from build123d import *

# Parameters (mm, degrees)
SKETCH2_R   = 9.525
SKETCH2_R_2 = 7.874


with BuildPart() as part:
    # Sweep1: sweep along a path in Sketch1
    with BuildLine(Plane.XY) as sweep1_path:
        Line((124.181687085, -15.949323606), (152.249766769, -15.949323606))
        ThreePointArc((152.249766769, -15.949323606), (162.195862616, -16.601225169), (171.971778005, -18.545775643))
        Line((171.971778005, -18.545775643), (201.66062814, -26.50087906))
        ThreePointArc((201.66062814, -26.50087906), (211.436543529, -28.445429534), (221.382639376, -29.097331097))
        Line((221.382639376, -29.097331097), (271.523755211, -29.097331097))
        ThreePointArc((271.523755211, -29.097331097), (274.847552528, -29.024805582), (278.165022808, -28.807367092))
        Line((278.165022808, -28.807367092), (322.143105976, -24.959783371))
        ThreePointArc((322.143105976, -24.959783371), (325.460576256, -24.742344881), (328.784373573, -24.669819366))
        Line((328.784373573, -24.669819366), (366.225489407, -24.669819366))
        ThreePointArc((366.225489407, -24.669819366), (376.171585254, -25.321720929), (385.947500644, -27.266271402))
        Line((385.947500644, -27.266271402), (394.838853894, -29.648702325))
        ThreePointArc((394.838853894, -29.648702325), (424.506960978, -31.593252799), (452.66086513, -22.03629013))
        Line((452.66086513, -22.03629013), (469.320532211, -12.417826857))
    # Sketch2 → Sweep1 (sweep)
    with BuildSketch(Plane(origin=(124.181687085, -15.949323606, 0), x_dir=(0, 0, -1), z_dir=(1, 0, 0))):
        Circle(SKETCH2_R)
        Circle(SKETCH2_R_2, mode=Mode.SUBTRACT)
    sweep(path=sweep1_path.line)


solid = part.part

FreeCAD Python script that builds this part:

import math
import FreeCAD as App
import Part
import Sketcher

V = App.Vector
Q = App.Units.Quantity

doc = App.newDocument("Part")
body = doc.addObject("PartDesign::Body", "Body")

sketch1 = body.newObject("Sketcher::SketchObject", "Sketch")
sketch1.AttachmentSupport = (doc.getObject("YZ_Plane"), [""])
sketch1.MapMode = "FlatFace"
sketch1.AttachmentOffset = App.Placement(V(0, 0, 124.181687), App.Rotation())
sketch1.addGeometry([
    Part.Circle(V(-16, 0, 0), V(0, 0, 1), 10),
    Part.Circle(V(-16, 0, 0), V(0, 0, 1), 8),
], False)
sketch1.addConstraint([
    Sketcher.Constraint("Coincident", 1, 3, 0, 3),
    Sketcher.Constraint("PointOnObject", 0, 3, -1),
    Sketcher.Constraint("Diameter", 0, Q("0.75 in")),
    Sketcher.Constraint("Diameter", 1, Q("0.62 in")),
    Sketcher.Constraint("DistanceX", 0, 3, -1, 1, 15.949324),
])

sketch2 = body.newObject("Sketcher::SketchObject", "Sketch001")
sketch2.AttachmentSupport = (doc.getObject("XY_Plane"), [""])
sketch2.MapMode = "FlatFace"
sketch2.addGeometry([
    Part.LineSegment(V(124, -16, 0), V(152, -16, 0)),
    Part.ArcOfCircle(Part.Circle(V(152, -92, 0), V(0, 0, 1), 76), math.radians(75), math.radians(90)),
    Part.LineSegment(V(172, -19, 0), V(202, -27, 0)),
    Part.ArcOfCircle(Part.Circle(V(221, 47, 0), V(0, 0, 1), 76), math.radians(-105), math.radians(-90)),
    Part.LineSegment(V(221, -29, 0), V(272, -29, 0)),
    Part.ArcOfCircle(Part.Circle(V(272, 47, 0), V(0, 0, 1), 76), math.radians(-90), math.radians(-85)),
    Part.LineSegment(V(278, -29, 0), V(322, -25, 0)),
    Part.ArcOfCircle(Part.Circle(V(329, -101, 0), V(0, 0, 1), 76), math.radians(90), math.radians(95)),
    Part.LineSegment(V(329, -25, 0), V(366, -25, 0)),
    Part.ArcOfCircle(Part.Circle(V(366, -101, 0), V(0, 0, 1), 76), math.radians(75), math.radians(90)),
    Part.LineSegment(V(386, -27, 0), V(395, -30, 0)),
    Part.ArcOfCircle(Part.Circle(V(415, 44, 0), V(0, 0, 1), 76), math.radians(-105), math.radians(-60)),
    Part.LineSegment(V(453, -22, 0), V(469, -12, 0)),
], False)
sketch2.addConstraint([
    Sketcher.Constraint("Tangent", 0, 2, 1, 2),
    Sketcher.Constraint("Tangent", 1, 1, 2, 1),
    Sketcher.Constraint("Tangent", 2, 2, 3, 1),
    Sketcher.Constraint("Tangent", 3, 2, 4, 1),
    Sketcher.Constraint("Tangent", 4, 2, 5, 1),
    Sketcher.Constraint("Tangent", 5, 2, 6, 1),
    Sketcher.Constraint("Tangent", 6, 2, 7, 2),
    Sketcher.Constraint("Tangent", 7, 1, 8, 1),
    Sketcher.Constraint("Tangent", 8, 2, 9, 2),
    Sketcher.Constraint("Tangent", 9, 1, 10, 1),
    Sketcher.Constraint("Tangent", 10, 2, 11, 1),
    Sketcher.Constraint("Tangent", 11, 2, 12, 1),
    Sketcher.Constraint("Horizontal", 0),
    Sketcher.Constraint("Horizontal", 4),
    Sketcher.Constraint("Horizontal", 8),
    Sketcher.Constraint("Equal", 1, 3),
    Sketcher.Constraint("Equal", 3, 5),
    Sketcher.Constraint("Equal", 5, 7),
    Sketcher.Constraint("Equal", 7, 9),
    Sketcher.Constraint("Equal", 9, 11),
    Sketcher.Constraint("Parallel", 2, 10),
    Sketcher.Constraint("Radius", 1, Q("3 in")),
    Sketcher.Constraint("Angle", 2, Q("-15 deg")),
    Sketcher.Constraint("Angle", 6, Q("5 deg")),
    Sketcher.Constraint("Angle", 12, Q("30 deg")),
    Sketcher.Constraint("DistanceX", 0, 1, 0, 2, 28.06808),
    Sketcher.Constraint("DistanceX", -1, 1, 9, 1, 385.947501),
    Sketcher.Constraint("DistanceX", 1, 3, 11, 3, 262.311098),
    Sketcher.Constraint("Distance", 2, 30.736159),
    Sketcher.Constraint("DistanceX", 4, 1, 4, 2, 50.141116),
    Sketcher.Constraint("DistanceX", 8, 1, 8, 2, 37.441116),
    Sketcher.Constraint("DistanceX", -1, 1, 3, 3, 221.382639),
    Sketcher.Constraint("DistanceY", -1, 1, 3, 3, 47.102669),
    Sketcher.Constraint("DistanceX", 10, 2, 12, 2, 74.481678),
])
doc.recompute()

additivepipe = body.newObject("PartDesign::AdditivePipe", "AdditivePipe")
additivepipe.Profile = sketch1
additivepipe.Spine = (sketch2, ["Edge1", "Edge2", "Edge3", "Edge4", "Edge5", "Edge6", "Edge7", "Edge8", "Edge9", "Edge10", "Edge11", "Edge12", "Edge13"])

doc.recompute()
